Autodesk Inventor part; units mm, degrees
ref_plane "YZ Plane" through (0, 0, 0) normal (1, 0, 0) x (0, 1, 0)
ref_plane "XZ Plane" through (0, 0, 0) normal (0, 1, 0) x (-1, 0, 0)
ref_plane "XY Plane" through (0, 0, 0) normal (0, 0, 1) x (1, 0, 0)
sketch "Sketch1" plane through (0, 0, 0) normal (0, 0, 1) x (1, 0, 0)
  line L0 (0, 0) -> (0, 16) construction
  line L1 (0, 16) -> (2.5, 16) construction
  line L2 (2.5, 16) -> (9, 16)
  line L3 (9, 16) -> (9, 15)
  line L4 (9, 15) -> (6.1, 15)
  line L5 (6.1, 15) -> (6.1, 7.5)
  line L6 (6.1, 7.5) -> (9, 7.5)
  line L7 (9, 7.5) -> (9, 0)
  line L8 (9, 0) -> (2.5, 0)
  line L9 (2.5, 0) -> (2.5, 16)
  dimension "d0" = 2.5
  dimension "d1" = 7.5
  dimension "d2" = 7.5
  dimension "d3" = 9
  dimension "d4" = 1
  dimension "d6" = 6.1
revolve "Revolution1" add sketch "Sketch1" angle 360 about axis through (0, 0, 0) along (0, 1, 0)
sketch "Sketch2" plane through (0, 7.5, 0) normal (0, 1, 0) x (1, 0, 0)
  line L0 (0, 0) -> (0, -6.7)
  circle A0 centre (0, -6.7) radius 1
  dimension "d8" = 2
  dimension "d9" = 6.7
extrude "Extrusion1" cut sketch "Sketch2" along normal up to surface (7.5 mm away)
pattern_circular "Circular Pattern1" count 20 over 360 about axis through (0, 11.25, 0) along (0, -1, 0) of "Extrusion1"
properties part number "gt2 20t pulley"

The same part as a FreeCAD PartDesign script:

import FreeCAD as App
import Part
import Sketcher

V = App.Vector


def add_polygon(sketch, points):
    """Adds a closed chain of lines whose ends are joined by coincident constraints."""
    first, n = sketch.GeometryCount, len(points)
    for a, b in zip(points, points[1:] + points[:1]):
        sketch.addGeometry(Part.LineSegment(App.Vector(*a, 0), App.Vector(*b, 0)), False)
    for i in range(n):
        sketch.addConstraint(Sketcher.Constraint("Coincident", first + i, 2, first + (i + 1) % n, 1))

doc = App.newDocument("Part")
body = doc.addObject("PartDesign::Body", "Body")

# Sketch on XY plane
sketch1 = body.newObject("Sketcher::SketchObject", "Sketch")
sketch1.AttachmentSupport = (doc.getObject("XY_Plane"), [""])
sketch1.MapMode = "FlatFace"
add_polygon(sketch1, [(9, 16), (2.5, 16), (2.5, 0), (9, 0), (9, 7.5), (6.1, 7.5), (6.1, 15), (9, 15)])  # lines 0-7
sketch1.addConstraint(Sketcher.Constraint("Horizontal", 0))
sketch1.addConstraint(Sketcher.Constraint("Vertical", 1))
sketch1.addConstraint(Sketcher.Constraint("Horizontal", 2))
sketch1.addConstraint(Sketcher.Constraint("Vertical", 3))
sketch1.addConstraint(Sketcher.Constraint("Horizontal", 4))
sketch1.addConstraint(Sketcher.Constraint("Vertical", 5))
sketch1.addConstraint(Sketcher.Constraint("Horizontal", 6))
sketch1.addConstraint(Sketcher.Constraint("Vertical", 7))
sketch1.addConstraint(Sketcher.Constraint("PointOnObject", 1, 2, -1))
sketch1.addConstraint(Sketcher.Constraint("Vertical", 3, 2, 6, 2))
sketch1.addConstraint(Sketcher.Constraint("Equal", 3, 5))
sketch1.addConstraint(Sketcher.Constraint("DistanceY", 7, 1, 7, 2, 1.0))
sketch1.addConstraint(Sketcher.Constraint("DistanceY", 3, 1, 3, 2, 7.5))
sketch1.addConstraint(Sketcher.Constraint("DistanceX", -1, 1, 2, 2, 9.0))
sketch1.addConstraint(Sketcher.Constraint("DistanceX", -1, 1, 0, 2, 2.5))
sketch1.addConstraint(Sketcher.Constraint("DistanceX", -1, 1, 4, 2, 6.1))
revolution = body.newObject("PartDesign::Revolution", "Revolution")
revolution.Profile = sketch1
revolution.ReferenceAxis = (sketch1, ["V_Axis"])
revolution.Angle = 360

# Sketch on XZ plane
sketch2 = body.newObject("Sketcher::SketchObject", "Sketch001")
sketch2.AttachmentSupport = (doc.getObject("XZ_Plane"), [""])
sketch2.MapMode = "FlatFace"
sketch2.AttachmentOffset = App.Placement(V(0, 0, -7.5), App.Rotation())
sketch2.addGeometry(Part.Circle(V(0, 6.7, 0), V(0, 0, 1), 1), False)
sketch2.addConstraint(Sketcher.Constraint("PointOnObject", 0, 3, -2))
sketch2.addConstraint(Sketcher.Constraint("Diameter", 0, 2.0))
sketch2.addConstraint(Sketcher.Constraint("DistanceY", -1, 1, 0, 3, 6.7))
pocket1 = body.newObject("PartDesign::Pocket", "Pocket")
pocket1.Profile = sketch2
pocket1.Length = 7.5
doc.recompute()

polarpattern = body.newObject("PartDesign::PolarPattern", "PolarPattern")
polarpattern.Originals = [pocket1]
polarpattern.Axis = (doc.getObject("Y_Axis"), [""])
polarpattern.Angle = 360
polarpattern.Occurrences = 20
body.Tip = polarpattern

doc.recompute()
